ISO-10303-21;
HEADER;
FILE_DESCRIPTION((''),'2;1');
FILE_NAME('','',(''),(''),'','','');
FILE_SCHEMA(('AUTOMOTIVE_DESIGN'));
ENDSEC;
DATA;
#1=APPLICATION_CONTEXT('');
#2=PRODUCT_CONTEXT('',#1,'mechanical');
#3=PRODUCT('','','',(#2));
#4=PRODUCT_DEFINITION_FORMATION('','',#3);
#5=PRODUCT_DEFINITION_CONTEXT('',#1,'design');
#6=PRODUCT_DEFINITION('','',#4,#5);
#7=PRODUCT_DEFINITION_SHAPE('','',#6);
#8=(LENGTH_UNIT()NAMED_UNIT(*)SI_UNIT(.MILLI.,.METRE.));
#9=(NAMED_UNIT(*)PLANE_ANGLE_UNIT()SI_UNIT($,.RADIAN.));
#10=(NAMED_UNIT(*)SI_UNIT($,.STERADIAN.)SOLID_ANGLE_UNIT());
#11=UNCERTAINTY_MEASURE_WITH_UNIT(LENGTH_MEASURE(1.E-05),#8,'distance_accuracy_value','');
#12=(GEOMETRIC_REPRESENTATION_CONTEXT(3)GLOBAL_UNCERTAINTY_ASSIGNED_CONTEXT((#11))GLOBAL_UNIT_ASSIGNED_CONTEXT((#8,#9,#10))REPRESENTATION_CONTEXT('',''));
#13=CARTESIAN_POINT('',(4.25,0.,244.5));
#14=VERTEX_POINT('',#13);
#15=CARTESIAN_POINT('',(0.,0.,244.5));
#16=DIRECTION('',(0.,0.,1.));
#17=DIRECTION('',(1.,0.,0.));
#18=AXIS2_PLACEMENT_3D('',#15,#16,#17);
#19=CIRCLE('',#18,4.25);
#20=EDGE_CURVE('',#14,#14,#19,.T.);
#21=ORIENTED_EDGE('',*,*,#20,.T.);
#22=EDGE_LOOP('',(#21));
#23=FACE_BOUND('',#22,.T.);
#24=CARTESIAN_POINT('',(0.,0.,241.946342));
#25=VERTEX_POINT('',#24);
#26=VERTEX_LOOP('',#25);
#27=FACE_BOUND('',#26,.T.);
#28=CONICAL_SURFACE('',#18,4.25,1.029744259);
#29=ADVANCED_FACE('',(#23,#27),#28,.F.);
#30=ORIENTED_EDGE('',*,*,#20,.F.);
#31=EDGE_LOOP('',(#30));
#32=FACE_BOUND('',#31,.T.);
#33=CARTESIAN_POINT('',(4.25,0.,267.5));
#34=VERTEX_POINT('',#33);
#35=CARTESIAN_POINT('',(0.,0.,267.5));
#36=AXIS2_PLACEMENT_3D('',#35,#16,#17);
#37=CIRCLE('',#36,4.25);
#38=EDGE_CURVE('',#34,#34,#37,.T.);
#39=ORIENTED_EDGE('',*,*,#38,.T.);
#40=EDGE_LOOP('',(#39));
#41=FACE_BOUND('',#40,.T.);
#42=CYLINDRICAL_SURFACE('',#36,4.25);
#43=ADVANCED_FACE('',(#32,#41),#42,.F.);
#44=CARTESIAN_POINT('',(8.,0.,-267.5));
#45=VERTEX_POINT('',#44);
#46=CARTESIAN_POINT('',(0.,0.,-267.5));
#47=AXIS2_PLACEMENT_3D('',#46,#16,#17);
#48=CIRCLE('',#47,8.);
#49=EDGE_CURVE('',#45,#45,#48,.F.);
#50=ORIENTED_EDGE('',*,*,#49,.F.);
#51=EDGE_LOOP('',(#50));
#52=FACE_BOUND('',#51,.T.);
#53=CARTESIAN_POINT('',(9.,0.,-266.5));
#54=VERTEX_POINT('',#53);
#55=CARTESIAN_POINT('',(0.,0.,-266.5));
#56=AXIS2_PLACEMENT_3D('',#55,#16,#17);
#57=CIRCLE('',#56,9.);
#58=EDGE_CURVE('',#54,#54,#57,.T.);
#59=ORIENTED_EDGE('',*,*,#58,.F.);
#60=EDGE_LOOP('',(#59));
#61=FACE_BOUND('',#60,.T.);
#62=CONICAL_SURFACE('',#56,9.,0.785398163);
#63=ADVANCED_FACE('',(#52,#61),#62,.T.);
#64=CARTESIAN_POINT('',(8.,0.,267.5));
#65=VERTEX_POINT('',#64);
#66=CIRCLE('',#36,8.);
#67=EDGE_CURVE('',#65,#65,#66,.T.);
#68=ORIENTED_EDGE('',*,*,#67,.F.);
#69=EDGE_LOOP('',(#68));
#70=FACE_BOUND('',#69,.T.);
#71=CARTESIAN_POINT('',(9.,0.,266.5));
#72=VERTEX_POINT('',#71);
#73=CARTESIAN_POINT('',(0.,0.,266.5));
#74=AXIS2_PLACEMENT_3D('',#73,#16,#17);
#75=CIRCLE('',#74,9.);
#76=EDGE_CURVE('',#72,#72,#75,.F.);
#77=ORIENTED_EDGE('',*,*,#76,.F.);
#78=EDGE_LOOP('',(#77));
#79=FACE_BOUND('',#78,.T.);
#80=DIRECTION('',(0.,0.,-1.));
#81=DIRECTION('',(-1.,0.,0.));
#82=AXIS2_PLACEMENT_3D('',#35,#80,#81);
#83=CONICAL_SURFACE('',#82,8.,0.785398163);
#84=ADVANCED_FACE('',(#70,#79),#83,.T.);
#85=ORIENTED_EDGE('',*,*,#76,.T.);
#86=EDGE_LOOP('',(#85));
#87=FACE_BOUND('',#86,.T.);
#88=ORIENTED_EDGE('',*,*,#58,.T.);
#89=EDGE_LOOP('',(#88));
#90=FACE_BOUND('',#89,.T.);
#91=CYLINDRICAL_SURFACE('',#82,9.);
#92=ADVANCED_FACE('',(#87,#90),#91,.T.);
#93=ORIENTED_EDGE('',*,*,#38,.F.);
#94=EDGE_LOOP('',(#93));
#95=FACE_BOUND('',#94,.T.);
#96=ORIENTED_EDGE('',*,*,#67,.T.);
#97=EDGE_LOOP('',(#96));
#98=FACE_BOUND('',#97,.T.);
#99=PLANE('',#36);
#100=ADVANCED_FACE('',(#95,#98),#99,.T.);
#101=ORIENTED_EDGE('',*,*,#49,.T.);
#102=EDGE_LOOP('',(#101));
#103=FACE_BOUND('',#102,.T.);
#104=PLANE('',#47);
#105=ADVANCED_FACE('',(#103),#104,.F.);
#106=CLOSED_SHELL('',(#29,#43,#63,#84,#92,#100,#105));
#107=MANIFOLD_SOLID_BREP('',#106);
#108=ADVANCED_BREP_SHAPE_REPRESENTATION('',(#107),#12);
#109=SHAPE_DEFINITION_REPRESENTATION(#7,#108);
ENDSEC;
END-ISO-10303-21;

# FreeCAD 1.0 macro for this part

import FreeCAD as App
import Part
import Sketcher
Q = App.Units.Quantity


def edges_at(feature, points):
    """Names of the edges that pass closest to the given points."""
    edges = feature.Shape.Edges
    near = lambda p: min(range(len(edges)), key=lambda i: edges[i].distToShape(Part.Vertex(*p))[0])
    return sorted({f"Edge{near(p) + 1}" for p in points})

doc = App.newDocument("Part")
body = doc.addObject("PartDesign::Body", "Body")

sketch1 = body.newObject("Sketcher::SketchObject", "Sketch")
sketch1.AttachmentSupport = (doc.getObject("XY_Plane"), [""])
sketch1.MapMode = "FlatFace"
sketch1.addGeometry(Part.Circle(App.Vector(0, 0, 0), App.Vector(0, 0, 1), 9), False)
sketch1.addConstraint([
    Sketcher.Constraint("Coincident", 0, 3, -1, 1),
    Sketcher.Constraint("Diameter", 0, Q("18 mm")),
])
pad1 = body.newObject("PartDesign::Pad", "Pad")
pad1.Profile = sketch1
pad1.Length = 535
pad1.Midplane = True
doc.recompute()

chamfer = body.newObject("PartDesign::Chamfer", "Chamfer")
chamfer.Base = (pad1, edges_at(pad1, [(-9, 0, -267.5), (-9, 0, 267.5)]))
chamfer.Size = 1

sketch2 = body.newObject("Sketcher::SketchObject", "Sketch001")
sketch2.AttachmentSupport = (doc.getObject("XY_Plane"), [""])
sketch2.MapMode = "FlatFace"
sketch2.AttachmentOffset = App.Placement(App.Vector(0, 0, 267.5), App.Rotation())
sketch2.addGeometry(Part.Circle(App.Vector(0, 0, 0), App.Vector(0, 0, 1), 4.2), False)
sketch2.addConstraint([
    Sketcher.Constraint("Coincident", 0, 3, -1, 1),
    Sketcher.Constraint("Diameter", 0, Q("8.5 mm")),
])
doc.recompute()
hole = body.newObject("PartDesign::Hole", "Hole")
hole.Profile = sketch2
hole.ThreadType = "None"
hole.Diameter = 8.5
hole.DepthType = "Dimension"
hole.Depth = 23
hole.DrillPoint = "Angled"
hole.DrillPointAngle = 118

doc.recompute()
